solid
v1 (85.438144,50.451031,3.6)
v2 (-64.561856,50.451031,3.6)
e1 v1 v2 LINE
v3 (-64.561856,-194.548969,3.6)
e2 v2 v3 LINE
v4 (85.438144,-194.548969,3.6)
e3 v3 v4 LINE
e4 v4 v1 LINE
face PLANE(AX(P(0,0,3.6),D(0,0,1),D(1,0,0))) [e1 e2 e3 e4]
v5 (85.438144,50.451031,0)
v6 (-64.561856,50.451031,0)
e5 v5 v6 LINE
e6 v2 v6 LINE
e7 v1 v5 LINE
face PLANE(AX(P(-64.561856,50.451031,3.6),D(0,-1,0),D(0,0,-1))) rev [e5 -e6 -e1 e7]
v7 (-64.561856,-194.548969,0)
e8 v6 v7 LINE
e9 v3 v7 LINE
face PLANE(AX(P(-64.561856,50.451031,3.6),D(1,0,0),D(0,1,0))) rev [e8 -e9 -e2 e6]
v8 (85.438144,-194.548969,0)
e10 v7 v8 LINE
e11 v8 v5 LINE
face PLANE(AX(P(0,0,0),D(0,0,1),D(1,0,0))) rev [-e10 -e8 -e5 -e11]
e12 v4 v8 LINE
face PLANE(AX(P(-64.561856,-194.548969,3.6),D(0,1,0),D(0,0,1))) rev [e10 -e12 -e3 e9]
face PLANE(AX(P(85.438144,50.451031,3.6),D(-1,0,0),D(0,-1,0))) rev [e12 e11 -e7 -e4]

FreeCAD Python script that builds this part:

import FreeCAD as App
import Part
import Sketcher

V = App.Vector
Q = App.Units.Quantity

doc = App.newDocument("Part")
body = doc.addObject("PartDesign::Body", "Body")

sketch1 = doc.addObject("Sketcher::SketchObject", "Sketch")
body.addObject(sketch1)
sketch1.AttachmentSupport = (doc.XY_Plane, [""])
sketch1.MapMode = "FlatFace"
sketch1.addGeometry(Part.LineSegment(V(-64.561856, 50.451031, 0), V(-64.561856, -194.548969, 0)), False)
sketch1.addGeometry(Part.LineSegment(V(-64.561856, -194.548969, 0), V(85.438144, -194.548969, 0)), False)
sketch1.addGeometry(Part.LineSegment(V(85.438144, -194.548969, 0), V(85.438144, 50.451031, 0)), False)
sketch1.addGeometry(Part.LineSegment(V(85.438144, 50.451031, 0), V(-64.561856, 50.451031, 0)), False)
sketch1.addConstraint(Sketcher.Constraint("Coincident", 0, 2, 1, 1))
sketch1.addConstraint(Sketcher.Constraint("Coincident", 1, 2, 2, 1))
sketch1.addConstraint(Sketcher.Constraint("Coincident", 2, 2, 3, 1))
sketch1.addConstraint(Sketcher.Constraint("Coincident", 3, 2, 0, 1))
sketch1.addConstraint(Sketcher.Constraint("Vertical", 0))
sketch1.addConstraint(Sketcher.Constraint("Horizontal", 1))
sketch1.addConstraint(Sketcher.Constraint("Vertical", 2))
sketch1.addConstraint(Sketcher.Constraint("Horizontal", 3))
sketch1.addConstraint(Sketcher.Constraint("DistanceX", 1, 1, 1, 2, Q("150 mm")))
sketch1.addConstraint(Sketcher.Constraint("DistanceY", 0, 2, 0, 1, Q("245 mm")))
sketch1.addConstraint(Sketcher.Constraint("DistanceY", 0, 2, -1, 1, Q("194.548969 mm")))
sketch1.addConstraint(Sketcher.Constraint("DistanceX", 0, 2, -1, 1, Q("64.561856 mm")))
pad1 = doc.addObject("PartDesign::Pad", "Pad")
body.addObject(pad1)
pad1.Profile = sketch1
pad1.Length = 3.6

doc.recompute()
